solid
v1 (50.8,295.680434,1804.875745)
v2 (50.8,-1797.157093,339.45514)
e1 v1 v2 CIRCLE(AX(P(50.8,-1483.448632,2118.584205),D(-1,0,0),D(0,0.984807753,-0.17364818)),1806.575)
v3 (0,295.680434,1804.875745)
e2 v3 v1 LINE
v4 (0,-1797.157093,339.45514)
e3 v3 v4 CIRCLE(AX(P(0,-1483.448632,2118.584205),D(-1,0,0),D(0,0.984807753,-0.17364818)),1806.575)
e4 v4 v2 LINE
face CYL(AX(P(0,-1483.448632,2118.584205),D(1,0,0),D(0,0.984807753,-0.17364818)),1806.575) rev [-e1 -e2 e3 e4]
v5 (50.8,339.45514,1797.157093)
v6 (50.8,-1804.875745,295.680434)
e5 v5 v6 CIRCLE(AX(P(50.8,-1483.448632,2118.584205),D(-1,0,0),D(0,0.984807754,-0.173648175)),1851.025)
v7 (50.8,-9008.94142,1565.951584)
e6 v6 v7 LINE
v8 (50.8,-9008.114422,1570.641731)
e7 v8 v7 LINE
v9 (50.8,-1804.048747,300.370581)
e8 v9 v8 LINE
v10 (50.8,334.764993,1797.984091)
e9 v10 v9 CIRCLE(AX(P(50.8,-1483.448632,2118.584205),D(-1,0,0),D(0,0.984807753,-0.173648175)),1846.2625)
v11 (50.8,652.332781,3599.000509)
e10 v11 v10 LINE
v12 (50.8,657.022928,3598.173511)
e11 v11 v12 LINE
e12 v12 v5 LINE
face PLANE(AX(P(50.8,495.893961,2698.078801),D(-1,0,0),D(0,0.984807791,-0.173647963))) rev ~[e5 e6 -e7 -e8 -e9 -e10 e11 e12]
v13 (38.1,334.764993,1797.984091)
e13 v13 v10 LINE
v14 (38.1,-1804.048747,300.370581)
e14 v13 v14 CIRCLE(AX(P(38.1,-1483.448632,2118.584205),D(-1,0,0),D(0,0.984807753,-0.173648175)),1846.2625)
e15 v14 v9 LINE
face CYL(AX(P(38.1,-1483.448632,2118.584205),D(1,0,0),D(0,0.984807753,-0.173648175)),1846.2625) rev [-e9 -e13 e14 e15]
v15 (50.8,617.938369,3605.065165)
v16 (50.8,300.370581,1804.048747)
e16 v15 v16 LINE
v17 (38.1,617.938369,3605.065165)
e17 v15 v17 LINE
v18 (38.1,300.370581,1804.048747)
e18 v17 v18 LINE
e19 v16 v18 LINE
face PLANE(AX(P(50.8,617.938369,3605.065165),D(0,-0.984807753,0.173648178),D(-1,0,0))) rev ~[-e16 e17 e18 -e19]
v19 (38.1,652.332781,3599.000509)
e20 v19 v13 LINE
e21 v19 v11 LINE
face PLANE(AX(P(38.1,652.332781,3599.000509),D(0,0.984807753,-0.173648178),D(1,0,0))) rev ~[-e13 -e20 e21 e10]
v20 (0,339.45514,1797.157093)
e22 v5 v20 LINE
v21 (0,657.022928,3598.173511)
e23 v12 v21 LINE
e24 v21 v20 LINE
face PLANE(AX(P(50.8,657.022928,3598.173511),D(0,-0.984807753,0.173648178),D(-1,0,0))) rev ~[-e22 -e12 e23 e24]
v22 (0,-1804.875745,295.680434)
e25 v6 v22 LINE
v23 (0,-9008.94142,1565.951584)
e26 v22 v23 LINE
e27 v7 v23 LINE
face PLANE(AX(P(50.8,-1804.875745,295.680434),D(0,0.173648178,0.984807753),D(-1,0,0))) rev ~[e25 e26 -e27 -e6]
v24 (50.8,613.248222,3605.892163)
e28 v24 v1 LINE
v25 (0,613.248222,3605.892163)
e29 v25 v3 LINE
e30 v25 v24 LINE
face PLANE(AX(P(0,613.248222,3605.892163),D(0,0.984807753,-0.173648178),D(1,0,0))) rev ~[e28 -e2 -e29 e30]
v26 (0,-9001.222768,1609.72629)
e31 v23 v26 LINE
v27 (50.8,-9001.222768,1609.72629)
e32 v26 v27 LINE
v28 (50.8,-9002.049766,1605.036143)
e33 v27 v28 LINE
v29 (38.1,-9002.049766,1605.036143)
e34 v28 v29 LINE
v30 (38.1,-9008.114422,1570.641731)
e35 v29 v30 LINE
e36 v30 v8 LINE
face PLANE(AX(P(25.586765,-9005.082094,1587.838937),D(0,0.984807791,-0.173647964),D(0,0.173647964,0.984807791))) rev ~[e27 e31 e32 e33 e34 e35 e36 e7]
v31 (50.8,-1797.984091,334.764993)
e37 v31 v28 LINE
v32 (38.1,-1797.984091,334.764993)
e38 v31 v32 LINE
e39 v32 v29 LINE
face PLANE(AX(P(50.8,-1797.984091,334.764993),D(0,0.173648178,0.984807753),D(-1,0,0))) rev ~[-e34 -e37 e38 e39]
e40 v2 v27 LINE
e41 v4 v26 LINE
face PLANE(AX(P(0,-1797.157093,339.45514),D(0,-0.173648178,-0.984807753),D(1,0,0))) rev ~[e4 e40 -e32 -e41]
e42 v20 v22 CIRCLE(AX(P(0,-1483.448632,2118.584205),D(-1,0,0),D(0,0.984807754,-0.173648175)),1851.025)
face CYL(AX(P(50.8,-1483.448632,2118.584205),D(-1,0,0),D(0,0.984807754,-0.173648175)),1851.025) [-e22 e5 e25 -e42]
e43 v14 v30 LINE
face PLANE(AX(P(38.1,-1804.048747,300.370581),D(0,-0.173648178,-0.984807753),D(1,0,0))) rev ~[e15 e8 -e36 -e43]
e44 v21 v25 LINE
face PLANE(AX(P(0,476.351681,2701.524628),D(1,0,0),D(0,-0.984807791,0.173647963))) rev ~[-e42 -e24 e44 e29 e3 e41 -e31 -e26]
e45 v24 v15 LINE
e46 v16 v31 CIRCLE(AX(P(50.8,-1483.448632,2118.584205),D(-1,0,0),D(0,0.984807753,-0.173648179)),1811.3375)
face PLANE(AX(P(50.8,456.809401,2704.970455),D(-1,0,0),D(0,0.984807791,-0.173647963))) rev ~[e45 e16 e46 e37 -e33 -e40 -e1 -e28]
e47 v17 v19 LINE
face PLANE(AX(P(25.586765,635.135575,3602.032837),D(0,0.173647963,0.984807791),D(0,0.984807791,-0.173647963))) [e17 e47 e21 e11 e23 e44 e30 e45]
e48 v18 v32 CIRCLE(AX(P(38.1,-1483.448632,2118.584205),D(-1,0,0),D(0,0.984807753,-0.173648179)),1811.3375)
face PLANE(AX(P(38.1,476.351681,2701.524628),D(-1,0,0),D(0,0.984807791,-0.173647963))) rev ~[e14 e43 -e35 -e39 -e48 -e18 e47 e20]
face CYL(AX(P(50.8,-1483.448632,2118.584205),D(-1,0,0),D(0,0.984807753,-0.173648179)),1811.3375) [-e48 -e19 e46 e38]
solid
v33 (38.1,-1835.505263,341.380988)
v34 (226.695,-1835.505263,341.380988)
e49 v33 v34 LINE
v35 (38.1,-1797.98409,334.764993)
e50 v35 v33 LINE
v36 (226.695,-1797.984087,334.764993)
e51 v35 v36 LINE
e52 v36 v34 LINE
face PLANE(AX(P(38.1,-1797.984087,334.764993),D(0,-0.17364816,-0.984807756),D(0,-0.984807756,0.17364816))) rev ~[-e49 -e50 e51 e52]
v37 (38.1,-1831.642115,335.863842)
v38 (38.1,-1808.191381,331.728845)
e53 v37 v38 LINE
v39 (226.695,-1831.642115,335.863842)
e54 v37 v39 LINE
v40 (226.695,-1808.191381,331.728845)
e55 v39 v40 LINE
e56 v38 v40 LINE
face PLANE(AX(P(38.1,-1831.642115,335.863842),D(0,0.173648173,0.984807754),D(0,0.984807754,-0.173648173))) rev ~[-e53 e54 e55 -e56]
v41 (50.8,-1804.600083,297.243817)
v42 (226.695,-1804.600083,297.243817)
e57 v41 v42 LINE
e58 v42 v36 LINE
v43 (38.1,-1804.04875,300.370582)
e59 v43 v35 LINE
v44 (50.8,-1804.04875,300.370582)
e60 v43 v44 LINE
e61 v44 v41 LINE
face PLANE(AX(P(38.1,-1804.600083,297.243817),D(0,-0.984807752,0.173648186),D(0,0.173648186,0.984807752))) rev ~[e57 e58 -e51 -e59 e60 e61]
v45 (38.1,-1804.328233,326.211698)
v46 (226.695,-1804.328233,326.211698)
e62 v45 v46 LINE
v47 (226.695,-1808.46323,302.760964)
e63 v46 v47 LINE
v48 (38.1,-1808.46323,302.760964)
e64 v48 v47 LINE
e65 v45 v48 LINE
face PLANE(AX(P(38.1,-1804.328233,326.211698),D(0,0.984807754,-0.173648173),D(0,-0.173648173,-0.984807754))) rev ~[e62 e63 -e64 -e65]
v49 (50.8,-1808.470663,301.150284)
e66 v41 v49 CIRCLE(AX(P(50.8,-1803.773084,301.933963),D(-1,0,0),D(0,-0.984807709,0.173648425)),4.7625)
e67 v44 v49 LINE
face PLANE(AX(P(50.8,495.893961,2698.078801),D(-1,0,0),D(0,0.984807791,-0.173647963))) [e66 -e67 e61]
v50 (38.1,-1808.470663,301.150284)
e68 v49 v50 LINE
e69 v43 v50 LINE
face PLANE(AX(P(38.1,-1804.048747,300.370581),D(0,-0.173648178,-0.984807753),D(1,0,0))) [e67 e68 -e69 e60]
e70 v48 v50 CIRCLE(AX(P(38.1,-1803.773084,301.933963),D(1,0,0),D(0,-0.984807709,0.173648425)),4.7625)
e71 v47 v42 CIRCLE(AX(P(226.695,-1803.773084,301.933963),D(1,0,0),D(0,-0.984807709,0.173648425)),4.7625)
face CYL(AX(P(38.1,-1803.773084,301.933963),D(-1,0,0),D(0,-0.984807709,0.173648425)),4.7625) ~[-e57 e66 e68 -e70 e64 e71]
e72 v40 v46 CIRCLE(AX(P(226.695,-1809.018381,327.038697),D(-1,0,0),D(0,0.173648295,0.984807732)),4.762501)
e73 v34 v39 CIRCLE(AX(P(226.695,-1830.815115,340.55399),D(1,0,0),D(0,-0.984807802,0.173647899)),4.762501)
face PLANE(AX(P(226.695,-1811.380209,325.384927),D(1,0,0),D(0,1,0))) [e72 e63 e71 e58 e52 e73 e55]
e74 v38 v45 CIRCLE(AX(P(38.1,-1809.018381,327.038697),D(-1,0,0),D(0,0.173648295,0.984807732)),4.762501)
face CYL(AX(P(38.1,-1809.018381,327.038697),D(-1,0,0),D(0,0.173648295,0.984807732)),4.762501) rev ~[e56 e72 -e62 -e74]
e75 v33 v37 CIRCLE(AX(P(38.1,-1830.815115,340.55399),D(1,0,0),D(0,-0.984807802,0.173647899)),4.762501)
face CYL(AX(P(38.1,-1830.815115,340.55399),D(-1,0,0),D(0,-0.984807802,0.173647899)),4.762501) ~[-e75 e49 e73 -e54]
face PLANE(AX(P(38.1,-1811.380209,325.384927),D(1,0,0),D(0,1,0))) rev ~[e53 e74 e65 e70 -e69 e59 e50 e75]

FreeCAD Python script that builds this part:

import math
import FreeCAD as App
import Part
import Sketcher
Q = App.Units.Quantity

doc = App.newDocument("Part")
body = doc.addObject("PartDesign::Body", "Body")

# Sketch on an angled plane
sketch1 = body.newObject("Sketcher::SketchObject", "Sketch")
sketch1.Placement = App.Placement(App.Vector(0, 635.135575, 3602.032837), App.Rotation(App.Vector(1, 0, 0), App.Vector(0, 0.984807791, -0.173647963), App.Vector(0, 0.173647963, 0.984807791), "ZXY"))
sketch1.addGeometry([
    Part.LineSegment(App.Vector(0, -22.2, 0), App.Vector(50.8, -22.2, 0)),  # 0
    Part.LineSegment(App.Vector(50.8, -22.2, 0), App.Vector(50.8, -17.5, 0)),  # 1
    Part.LineSegment(App.Vector(50.8, -17.5, 0), App.Vector(38.1, -17.5, 0)),  # 2
    Part.LineSegment(App.Vector(38.1, -17.5, 0), App.Vector(38.1, 17.5, 0)),  # 3
    Part.LineSegment(App.Vector(38.1, 17.5, 0), App.Vector(50.8, 17.5, 0)),  # 4
    Part.LineSegment(App.Vector(50.8, 17.5, 0), App.Vector(50.8, 22.2, 0)),  # 5
    Part.LineSegment(App.Vector(50.8, 22.2, 0), App.Vector(0, 22.2, 0)),  # 6
    Part.LineSegment(App.Vector(0, 22.2, 0), App.Vector(0, -22.2, 0)),  # 7
], False)
sketch1.addConstraint([
    Sketcher.Constraint("Coincident", 0, 2, 1, 1),
    Sketcher.Constraint("Coincident", 1, 2, 2, 1),
    Sketcher.Constraint("Coincident", 2, 2, 3, 1),
    Sketcher.Constraint("Coincident", 3, 2, 4, 1),
    Sketcher.Constraint("Coincident", 4, 2, 5, 1),
    Sketcher.Constraint("Coincident", 5, 2, 6, 1),
    Sketcher.Constraint("Coincident", 6, 2, 7, 1),
    Sketcher.Constraint("Coincident", 7, 2, 0, 1),
    Sketcher.Constraint("Horizontal", 0),
    Sketcher.Constraint("Vertical", 1),
    Sketcher.Constraint("Horizontal", 2),
    Sketcher.Constraint("Vertical", 3),
    Sketcher.Constraint("Horizontal", 4),
    Sketcher.Constraint("Vertical", 5),
    Sketcher.Constraint("Horizontal", 6),
    Sketcher.Constraint("Vertical", 7),
    Sketcher.Constraint("Symmetric", 6, 2, 7, 2, -1, 1),
    Sketcher.Constraint("Symmetric", 1, 2, 4, 2, -1),
    Sketcher.Constraint("DistanceX", 0, 1, 0, 2, Q("2 in")),
    Sketcher.Constraint("DistanceX", 2, 2, 2, 1, Q("0.5 in")),
    Sketcher.Constraint("DistanceY", 7, 2, 7, 1, Q("1.75 in")),
    Sketcher.Constraint("DistanceY", 1, 1, 1, 2, Q("0.1875 in")),
])

# Sketch on YZ plane
sketch2 = body.newObject("Sketcher::SketchObject", "Sketch001")
sketch2.AttachmentSupport = (doc.getObject("YZ_Plane"), [""])
sketch2.MapMode = "FlatFace"
sketch2.addGeometry([
    Part.LineSegment(App.Vector(635, 3602, 0), App.Vector(318, 1801, 0)),
    Part.ArcOfCircle(Part.Circle(App.Vector(-1483, 2119, 0), App.Vector(0, 0, 1), 1829), math.radians(-100), math.radians(-10)),
    Part.LineSegment(App.Vector(-1801, 318, 0), App.Vector(-9005, 1588, 0)),
], False)
sketch2.addConstraint([
    Sketcher.Constraint("Coincident", 0, 2, 1, 2),
    Sketcher.Constraint("Coincident", 1, 1, 2, 1),
    Sketcher.Constraint("Perpendicular", 0, 2),
    Sketcher.Constraint("Radius", 1, Q("72 in")),
    Sketcher.Constraint("Distance", 0, Q("72 in")),
    Sketcher.Constraint("Distance", 2, Q("288 in")),
    Sketcher.Constraint("Angle", 0, Q("-100 deg")),
    Sketcher.Constraint("DistanceY", 2, 2, 0, 1, Q("2014.1939 mm")),
    Sketcher.Constraint("DistanceX", 1, 3, -1, 1, Q("1483.448632 mm")),
    Sketcher.Constraint("DistanceY", -1, 1, 0, 2, Q("1801.016419 mm")),
    Sketcher.Constraint("DistanceY", 1, 3, 0, 1, Q("1483.448632 mm")),
])
doc.recompute()

additivepipe = body.newObject("PartDesign::AdditivePipe", "AdditivePipe")
additivepipe.Profile = sketch1
additivepipe.Spine = (sketch2, ["Edge1", "Edge2", "Edge3"])
body2 = doc.addObject("PartDesign::Body", "Body001")

# Sketch on YZ plane
sketch3 = body2.newObject("Sketcher::SketchObject", "Sketch002")
sketch3.AttachmentSupport = (doc.getObject("YZ_Plane001"), [""])
sketch3.MapMode = "FlatFace"
sketch3.AttachmentOffset = App.Placement(App.Vector(0, 0, 1.5 * 25.4), App.Rotation())
sketch3.addGeometry([
    Part.LineSegment(App.Vector(-1804.6, 297.2, 0), App.Vector(-1798, 334.8, 0)),  # 0
    Part.LineSegment(App.Vector(-1798, 334.8, 0), App.Vector(-1835.5, 341.4, 0)),  # 1
    Part.ArcOfCircle(Part.Circle(App.Vector(-1830.8, 340.6, 0), App.Vector(0, 0, 1), 4.8), math.radians(170), math.radians(260)),  # 2
    Part.LineSegment(App.Vector(-1831.6, 335.9, 0), App.Vector(-1808.2, 331.7, 0)),  # 3
    Part.ArcOfCircle(Part.Circle(App.Vector(-1809, 327, 0), App.Vector(0, 0, 1), 4.8), math.radians(-10), math.radians(80)),  # 4
    Part.LineSegment(App.Vector(-1804.3, 326.2, 0), App.Vector(-1808.5, 302.8, 0)),  # 5
    Part.ArcOfCircle(Part.Circle(App.Vector(-1803.8, 301.9, 0), App.Vector(0, 0, 1), 4.8), math.radians(170), math.radians(260)),  # 6
], False)
sketch3.addConstraint([
    Sketcher.Constraint("Coincident", 0, 2, 1, 1),
    Sketcher.Constraint("Coincident", 1, 2, 2, 1),
    Sketcher.Constraint("Tangent", 2, 2, 3, 1),
    Sketcher.Constraint("Tangent", 3, 2, 4, 2),
    Sketcher.Constraint("Tangent", 4, 1, 5, 1),
    Sketcher.Constraint("Tangent", 5, 2, 6, 1),
    Sketcher.Constraint("Coincident", 6, 2, 0, 1),
    Sketcher.Constraint("Equal", 2, 4),
    Sketcher.Constraint("Equal", 4, 6),
    Sketcher.Constraint("Perpendicular", 0, 1),
    Sketcher.Constraint("Parallel", 1, 3),
    Sketcher.Constraint("Perpendicular", 3, 5),
    Sketcher.Constraint("Equal", 0, 1),
    Sketcher.Constraint("Equal", 3, 5),
    Sketcher.Constraint("Angle", 0, Q("80 deg")),
    Sketcher.Constraint("Radius", 2, Q("0.1875 in")),
    Sketcher.Constraint("Distance", 0, Q("1.5 in")),
    Sketcher.Constraint("Distance", 3, Q("0.9375 in")),
    Sketcher.Constraint("DistanceY", -1, 1, 4, 1, Q("326.211698 mm")),
    Sketcher.Constraint("DistanceX", 4, 3, -1, 1, Q("1809.018381 mm")),
])
pad1 = body2.newObject("PartDesign::Pad", "Pad")
pad1.Profile = sketch3
pad1.Length = Q("7.425 in")
doc.recompute()

body3 = doc.addObject("PartDesign::Body", "Body002")
body3.BaseFeature = body
boolean = body2.newObject("PartDesign::Boolean", "Boolean")
boolean.Type = "Cut"
boolean.addObjects([body3])
doc.recompute()

doc.recompute()
